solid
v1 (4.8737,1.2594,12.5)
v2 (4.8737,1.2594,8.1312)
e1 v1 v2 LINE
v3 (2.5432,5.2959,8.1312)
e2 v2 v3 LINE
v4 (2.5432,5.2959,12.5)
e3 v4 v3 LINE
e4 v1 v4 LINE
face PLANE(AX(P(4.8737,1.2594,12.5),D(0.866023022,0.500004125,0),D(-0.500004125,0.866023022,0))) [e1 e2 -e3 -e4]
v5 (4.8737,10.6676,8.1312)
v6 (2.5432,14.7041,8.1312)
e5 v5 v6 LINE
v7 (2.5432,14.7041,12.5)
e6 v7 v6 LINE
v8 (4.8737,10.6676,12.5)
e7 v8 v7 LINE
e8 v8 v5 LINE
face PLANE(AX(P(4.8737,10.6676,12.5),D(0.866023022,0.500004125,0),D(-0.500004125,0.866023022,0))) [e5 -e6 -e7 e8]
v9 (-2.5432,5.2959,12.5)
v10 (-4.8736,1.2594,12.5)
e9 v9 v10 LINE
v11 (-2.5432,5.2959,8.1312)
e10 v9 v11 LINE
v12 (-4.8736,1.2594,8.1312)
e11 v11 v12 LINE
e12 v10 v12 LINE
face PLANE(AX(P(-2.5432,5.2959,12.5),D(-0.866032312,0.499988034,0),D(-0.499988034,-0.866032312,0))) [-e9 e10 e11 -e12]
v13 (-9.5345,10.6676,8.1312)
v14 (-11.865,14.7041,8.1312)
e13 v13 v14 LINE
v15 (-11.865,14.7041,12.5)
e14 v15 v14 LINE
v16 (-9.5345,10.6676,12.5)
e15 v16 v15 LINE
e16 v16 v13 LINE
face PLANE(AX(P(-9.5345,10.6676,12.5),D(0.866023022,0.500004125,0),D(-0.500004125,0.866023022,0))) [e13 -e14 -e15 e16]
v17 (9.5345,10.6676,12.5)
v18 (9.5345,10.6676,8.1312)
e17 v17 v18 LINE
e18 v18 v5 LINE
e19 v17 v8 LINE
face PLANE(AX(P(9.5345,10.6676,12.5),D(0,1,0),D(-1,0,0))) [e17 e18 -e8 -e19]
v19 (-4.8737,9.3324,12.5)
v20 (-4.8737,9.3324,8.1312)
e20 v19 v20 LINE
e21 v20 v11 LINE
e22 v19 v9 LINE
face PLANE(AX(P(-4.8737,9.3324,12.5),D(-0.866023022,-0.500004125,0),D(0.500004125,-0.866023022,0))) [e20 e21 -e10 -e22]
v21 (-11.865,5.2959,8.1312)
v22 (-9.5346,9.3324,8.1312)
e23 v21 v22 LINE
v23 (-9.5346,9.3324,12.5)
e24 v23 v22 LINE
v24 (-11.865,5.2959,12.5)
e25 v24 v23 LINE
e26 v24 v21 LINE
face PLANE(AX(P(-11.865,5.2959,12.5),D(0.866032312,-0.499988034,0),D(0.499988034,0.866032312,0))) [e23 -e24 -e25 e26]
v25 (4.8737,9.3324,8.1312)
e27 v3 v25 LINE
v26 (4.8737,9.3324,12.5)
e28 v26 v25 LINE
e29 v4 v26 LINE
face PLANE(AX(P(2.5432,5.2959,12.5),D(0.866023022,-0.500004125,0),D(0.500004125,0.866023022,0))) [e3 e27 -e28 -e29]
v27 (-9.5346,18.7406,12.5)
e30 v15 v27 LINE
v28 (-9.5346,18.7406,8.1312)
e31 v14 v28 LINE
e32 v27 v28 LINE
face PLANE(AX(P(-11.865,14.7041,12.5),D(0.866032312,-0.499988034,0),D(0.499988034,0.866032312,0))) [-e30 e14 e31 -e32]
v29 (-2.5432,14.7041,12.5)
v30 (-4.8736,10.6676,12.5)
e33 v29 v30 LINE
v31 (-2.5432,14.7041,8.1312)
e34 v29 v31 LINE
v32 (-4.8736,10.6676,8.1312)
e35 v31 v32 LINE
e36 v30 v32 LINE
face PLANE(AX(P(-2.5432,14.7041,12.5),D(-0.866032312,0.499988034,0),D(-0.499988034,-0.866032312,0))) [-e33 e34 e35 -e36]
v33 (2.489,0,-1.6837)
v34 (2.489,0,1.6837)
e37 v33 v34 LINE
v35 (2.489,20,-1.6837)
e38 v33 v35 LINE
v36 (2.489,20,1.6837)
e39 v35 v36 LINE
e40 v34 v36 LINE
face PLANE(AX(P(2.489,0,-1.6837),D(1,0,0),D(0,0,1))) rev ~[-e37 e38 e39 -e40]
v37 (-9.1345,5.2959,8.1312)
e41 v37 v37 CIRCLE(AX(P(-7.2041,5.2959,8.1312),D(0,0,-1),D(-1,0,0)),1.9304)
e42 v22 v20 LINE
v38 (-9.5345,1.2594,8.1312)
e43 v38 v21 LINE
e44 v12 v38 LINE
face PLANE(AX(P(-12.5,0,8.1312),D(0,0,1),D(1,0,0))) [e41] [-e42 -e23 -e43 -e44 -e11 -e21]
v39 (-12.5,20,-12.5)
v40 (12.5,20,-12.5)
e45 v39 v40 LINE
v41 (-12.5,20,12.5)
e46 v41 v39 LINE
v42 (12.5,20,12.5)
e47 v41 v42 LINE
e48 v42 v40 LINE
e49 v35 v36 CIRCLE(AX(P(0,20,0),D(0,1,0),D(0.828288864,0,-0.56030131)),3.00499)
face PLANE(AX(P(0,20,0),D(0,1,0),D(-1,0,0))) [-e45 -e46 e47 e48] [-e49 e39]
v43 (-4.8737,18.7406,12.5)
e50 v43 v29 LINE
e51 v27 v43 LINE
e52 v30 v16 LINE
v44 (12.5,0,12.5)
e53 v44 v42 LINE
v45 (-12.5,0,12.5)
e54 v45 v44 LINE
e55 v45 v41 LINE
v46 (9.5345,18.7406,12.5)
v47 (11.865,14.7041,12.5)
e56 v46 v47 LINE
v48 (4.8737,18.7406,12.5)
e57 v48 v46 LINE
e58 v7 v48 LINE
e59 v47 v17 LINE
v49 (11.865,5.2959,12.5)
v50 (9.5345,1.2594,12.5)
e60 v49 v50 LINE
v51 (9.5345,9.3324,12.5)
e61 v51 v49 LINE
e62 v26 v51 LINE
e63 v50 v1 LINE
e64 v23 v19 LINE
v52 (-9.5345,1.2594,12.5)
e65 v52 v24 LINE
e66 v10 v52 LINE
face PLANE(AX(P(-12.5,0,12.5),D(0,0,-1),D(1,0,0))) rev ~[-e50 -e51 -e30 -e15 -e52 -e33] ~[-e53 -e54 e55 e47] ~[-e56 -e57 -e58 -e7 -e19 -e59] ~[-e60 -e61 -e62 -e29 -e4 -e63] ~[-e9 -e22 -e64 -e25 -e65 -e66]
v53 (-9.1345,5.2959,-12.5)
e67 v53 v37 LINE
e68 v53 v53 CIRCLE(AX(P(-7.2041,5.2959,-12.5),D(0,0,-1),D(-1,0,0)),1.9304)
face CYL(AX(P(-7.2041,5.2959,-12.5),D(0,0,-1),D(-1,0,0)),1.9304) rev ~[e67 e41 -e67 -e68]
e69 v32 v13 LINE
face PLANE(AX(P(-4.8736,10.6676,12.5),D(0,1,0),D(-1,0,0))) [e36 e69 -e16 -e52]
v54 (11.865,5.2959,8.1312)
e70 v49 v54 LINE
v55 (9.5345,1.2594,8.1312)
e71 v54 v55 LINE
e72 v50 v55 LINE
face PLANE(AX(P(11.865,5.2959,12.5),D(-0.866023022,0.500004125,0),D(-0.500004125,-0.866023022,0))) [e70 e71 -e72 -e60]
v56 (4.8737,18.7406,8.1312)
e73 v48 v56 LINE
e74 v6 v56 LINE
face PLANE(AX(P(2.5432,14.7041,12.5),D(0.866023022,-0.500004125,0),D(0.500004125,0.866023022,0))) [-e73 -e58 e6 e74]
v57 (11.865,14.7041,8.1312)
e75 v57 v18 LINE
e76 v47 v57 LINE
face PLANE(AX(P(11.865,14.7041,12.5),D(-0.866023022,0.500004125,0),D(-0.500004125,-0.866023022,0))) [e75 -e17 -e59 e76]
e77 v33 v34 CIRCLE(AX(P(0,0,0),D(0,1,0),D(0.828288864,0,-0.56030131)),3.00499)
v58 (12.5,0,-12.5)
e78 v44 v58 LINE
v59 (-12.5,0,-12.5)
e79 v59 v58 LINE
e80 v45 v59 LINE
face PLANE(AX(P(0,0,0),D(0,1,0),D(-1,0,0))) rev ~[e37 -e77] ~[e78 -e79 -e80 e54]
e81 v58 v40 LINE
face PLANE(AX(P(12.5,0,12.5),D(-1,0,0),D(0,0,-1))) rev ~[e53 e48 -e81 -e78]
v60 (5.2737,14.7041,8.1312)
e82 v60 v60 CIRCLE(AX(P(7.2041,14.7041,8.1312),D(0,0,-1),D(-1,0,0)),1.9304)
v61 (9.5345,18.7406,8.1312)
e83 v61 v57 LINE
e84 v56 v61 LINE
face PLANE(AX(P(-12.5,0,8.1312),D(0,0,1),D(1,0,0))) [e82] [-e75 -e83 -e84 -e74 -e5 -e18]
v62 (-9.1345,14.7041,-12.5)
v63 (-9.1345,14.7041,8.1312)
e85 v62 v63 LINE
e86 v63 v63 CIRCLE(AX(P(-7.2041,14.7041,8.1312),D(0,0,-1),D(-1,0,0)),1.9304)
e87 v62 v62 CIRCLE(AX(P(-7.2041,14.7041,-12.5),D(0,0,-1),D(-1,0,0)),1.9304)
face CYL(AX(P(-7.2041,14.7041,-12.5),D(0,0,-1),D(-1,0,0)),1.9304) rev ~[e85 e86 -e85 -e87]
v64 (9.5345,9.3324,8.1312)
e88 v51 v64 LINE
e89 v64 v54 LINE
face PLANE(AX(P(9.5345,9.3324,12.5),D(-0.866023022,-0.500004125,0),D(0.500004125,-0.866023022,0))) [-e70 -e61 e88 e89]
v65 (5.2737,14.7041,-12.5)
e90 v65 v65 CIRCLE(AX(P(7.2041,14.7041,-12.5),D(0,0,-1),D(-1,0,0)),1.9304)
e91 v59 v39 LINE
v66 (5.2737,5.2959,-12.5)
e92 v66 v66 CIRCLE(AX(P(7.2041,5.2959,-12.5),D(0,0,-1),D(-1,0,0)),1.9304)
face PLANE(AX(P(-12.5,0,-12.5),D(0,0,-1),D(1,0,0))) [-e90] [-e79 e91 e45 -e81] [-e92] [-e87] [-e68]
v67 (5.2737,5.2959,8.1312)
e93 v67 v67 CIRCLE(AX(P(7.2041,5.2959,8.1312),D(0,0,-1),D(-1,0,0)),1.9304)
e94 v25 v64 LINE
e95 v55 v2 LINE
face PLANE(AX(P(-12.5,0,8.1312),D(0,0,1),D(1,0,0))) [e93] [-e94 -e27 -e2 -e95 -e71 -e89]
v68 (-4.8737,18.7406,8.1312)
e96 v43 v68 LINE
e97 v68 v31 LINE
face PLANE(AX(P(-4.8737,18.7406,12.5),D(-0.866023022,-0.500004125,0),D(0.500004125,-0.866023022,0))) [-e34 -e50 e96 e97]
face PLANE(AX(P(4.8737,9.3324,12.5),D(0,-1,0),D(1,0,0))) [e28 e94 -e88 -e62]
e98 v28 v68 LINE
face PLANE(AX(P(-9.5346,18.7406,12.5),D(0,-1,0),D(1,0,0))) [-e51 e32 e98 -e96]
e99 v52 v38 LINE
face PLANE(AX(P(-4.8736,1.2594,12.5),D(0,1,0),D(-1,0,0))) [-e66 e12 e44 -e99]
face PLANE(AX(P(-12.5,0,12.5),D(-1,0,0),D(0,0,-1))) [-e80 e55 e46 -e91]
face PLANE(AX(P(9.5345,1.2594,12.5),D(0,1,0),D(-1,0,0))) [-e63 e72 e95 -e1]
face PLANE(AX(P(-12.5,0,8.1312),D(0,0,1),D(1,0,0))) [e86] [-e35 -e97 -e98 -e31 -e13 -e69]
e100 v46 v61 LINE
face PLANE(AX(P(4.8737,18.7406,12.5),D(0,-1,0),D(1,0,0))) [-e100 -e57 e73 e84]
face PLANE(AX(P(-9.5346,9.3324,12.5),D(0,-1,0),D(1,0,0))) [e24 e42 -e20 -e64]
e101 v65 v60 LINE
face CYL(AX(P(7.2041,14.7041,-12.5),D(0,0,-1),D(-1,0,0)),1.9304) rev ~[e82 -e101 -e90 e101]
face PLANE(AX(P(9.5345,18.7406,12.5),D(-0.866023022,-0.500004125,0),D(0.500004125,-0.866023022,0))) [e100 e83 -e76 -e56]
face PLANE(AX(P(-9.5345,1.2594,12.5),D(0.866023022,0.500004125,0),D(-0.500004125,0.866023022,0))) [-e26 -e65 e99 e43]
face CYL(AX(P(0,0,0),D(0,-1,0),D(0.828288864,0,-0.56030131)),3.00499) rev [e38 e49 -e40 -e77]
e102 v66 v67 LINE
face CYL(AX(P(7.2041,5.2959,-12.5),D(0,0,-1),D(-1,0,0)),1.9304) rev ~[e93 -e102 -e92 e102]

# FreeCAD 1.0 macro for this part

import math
import FreeCAD as App
import Part
import Sketcher
Q = App.Units.Quantity

doc = App.newDocument("Part")
body = doc.addObject("PartDesign::Body", "Body")

# Sketch on XZ plane
sketch1 = body.newObject("Sketcher::SketchObject", "Sketch")
sketch1.AttachmentSupport = (doc.getObject("XZ_Plane"), [""])
sketch1.MapMode = "FlatFace"
sketch1.addGeometry([
    Part.LineSegment(App.Vector(-12.5, -12.5, 0), App.Vector(-12.5, 12.5, 0)),  # 0
    Part.LineSegment(App.Vector(-12.5, 12.5, 0), App.Vector(12.5, 12.5, 0)),  # 1
    Part.LineSegment(App.Vector(12.5, 12.5, 0), App.Vector(12.5, -12.5, 0)),  # 2
    Part.LineSegment(App.Vector(12.5, -12.5, 0), App.Vector(-12.5, -12.5, 0)),  # 3
    Part.ArcOfCircle(Part.Circle(App.Vector(0, 0, 0), App.Vector(0, 0, 1), 3), math.radians(34), math.radians(326)),  # 4
    Part.LineSegment(App.Vector(2.5, -1.7, 0), App.Vector(2.5, 1.7, 0)),  # 5
], False)
sketch1.addConstraint([
    Sketcher.Constraint("Coincident", 0, 2, 1, 1),
    Sketcher.Constraint("Coincident", 1, 2, 2, 1),
    Sketcher.Constraint("Coincident", 2, 2, 3, 1),
    Sketcher.Constraint("Coincident", 3, 2, 0, 1),
    Sketcher.Constraint("Coincident", 4, 1, 5, 2),
    Sketcher.Constraint("Coincident", 5, 1, 4, 2),
    Sketcher.Constraint("Vertical", 0),
    Sketcher.Constraint("Horizontal", 1),
    Sketcher.Constraint("Vertical", 2),
    Sketcher.Constraint("Horizontal", 3),
    Sketcher.Constraint("Vertical", 5),
    Sketcher.Constraint("Coincident", 4, 3, -1, 1),
    Sketcher.Constraint("Symmetric", 0, 2, 2, 2, -1, 1),
    Sketcher.Constraint("Equal", 3, 0),
    Sketcher.Constraint("DistanceX", 1, 1, 1, 2, Q("25 mm")),
    Sketcher.Constraint("Radius", 4, Q("3.005 mm")),
    Sketcher.Constraint("DistanceX", -1, 1, 4, 1, Q("2.489 mm")),
])
pad1 = body.newObject("PartDesign::Pad", "Pad")
pad1.Profile = sketch1
pad1.Length = 20
pad1.Reversed = True

# Sketch on XY plane
sketch2 = body.newObject("Sketcher::SketchObject", "Sketch001")
sketch2.AttachmentSupport = (doc.getObject("XY_Plane"), [""])
sketch2.MapMode = "FlatFace"
sketch2.AttachmentOffset = App.Placement(App.Vector(0, 0, -12.5), App.Rotation())
sketch2.addGeometry([
    Part.Circle(App.Vector(7.2, 14.7, 0), App.Vector(0, 0, 1), 1.9),
    Part.Circle(App.Vector(7.2, 5.3, 0), App.Vector(0, 0, 1), 1.9),
    Part.Circle(App.Vector(-7.2, 14.7, 0), App.Vector(0, 0, 1), 1.9),
    Part.Circle(App.Vector(-7.2, 5.3, 0), App.Vector(0, 0, 1), 1.9),
], False)
sketch2.addConstraint([
    Sketcher.Constraint("Equal", 0, 1),
    Sketcher.Constraint("Equal", 1, 2),
    Sketcher.Constraint("Equal", 2, 3),
    Sketcher.Constraint("Symmetric", 0, 3, 2, 3, -2),
    Sketcher.Constraint("Symmetric", 1, 3, 3, 3, -2),
    Sketcher.Constraint("Vertical", 0, 3, 1, 3),
    Sketcher.Constraint("Diameter", 0, Q("3.8608 mm")),
    Sketcher.Constraint("DistanceY", -1, 1, 1, 3, Q("5.296 mm")),
    Sketcher.Constraint("DistanceX", -1, 1, 0, 3, Q("7.204 mm")),
    Sketcher.Constraint("DistanceY", -1, 1, 0, 3, Q("14.704 mm")),
])
pocket1 = body.newObject("PartDesign::Pocket", "Pocket")
pocket1.Profile = sketch2
pocket1.Type = "ThroughAll"
pocket1.Reversed = True

# Sketch on XY plane
sketch3 = body.newObject("Sketcher::SketchObject", "Sketch002")
sketch3.AttachmentSupport = (doc.getObject("XY_Plane"), [""])
sketch3.MapMode = "FlatFace"
sketch3.AttachmentOffset = App.Placement(App.Vector(0, 0, 12.5), App.Rotation())
sketch3.addGeometry([
    Part.LineSegment(App.Vector(9.5, 10.7, 0), App.Vector(11.9, 14.7, 0)),  # 0
    Part.LineSegment(App.Vector(11.9, 14.7, 0), App.Vector(9.5, 18.7, 0)),  # 1
    Part.LineSegment(App.Vector(9.5, 18.7, 0), App.Vector(4.9, 18.7, 0)),  # 2
    Part.LineSegment(App.Vector(4.9, 18.7, 0), App.Vector(2.5, 14.7, 0)),  # 3
    Part.LineSegment(App.Vector(2.5, 14.7, 0), App.Vector(4.9, 10.7, 0)),  # 4
    Part.LineSegment(App.Vector(4.9, 10.7, 0), App.Vector(9.5, 10.7, 0)),  # 5
    Part.LineSegment(App.Vector(9.5, 1.3, 0), App.Vector(11.9, 5.3, 0)),  # 6
    Part.LineSegment(App.Vector(11.9, 5.3, 0), App.Vector(9.5, 9.3, 0)),  # 7
    Part.LineSegment(App.Vector(9.5, 9.3, 0), App.Vector(4.9, 9.3, 0)),  # 8
    Part.LineSegment(App.Vector(4.9, 9.3, 0), App.Vector(2.5, 5.3, 0)),  # 9
    Part.LineSegment(App.Vector(2.5, 5.3, 0), App.Vector(4.9, 1.3, 0)),  # 10
    Part.LineSegment(App.Vector(4.9, 1.3, 0), App.Vector(9.5, 1.3, 0)),  # 11
    Part.LineSegment(App.Vector(-4.9, 1.3, 0), App.Vector(-2.5, 5.3, 0)),  # 12
    Part.LineSegment(App.Vector(-2.5, 5.3, 0), App.Vector(-4.9, 9.3, 0)),  # 13
    Part.LineSegment(App.Vector(-4.9, 9.3, 0), App.Vector(-9.5, 9.3, 0)),  # 14
    Part.LineSegment(App.Vector(-9.5, 9.3, 0), App.Vector(-11.9, 5.3, 0)),  # 15
    Part.LineSegment(App.Vector(-11.9, 5.3, 0), App.Vector(-9.5, 1.3, 0)),  # 16
    Part.LineSegment(App.Vector(-9.5, 1.3, 0), App.Vector(-4.9, 1.3, 0)),  # 17
    Part.LineSegment(App.Vector(-4.9, 10.7, 0), App.Vector(-2.5, 14.7, 0)),  # 18
    Part.LineSegment(App.Vector(-2.5, 14.7, 0), App.Vector(-4.9, 18.7, 0)),  # 19
    Part.LineSegment(App.Vector(-4.9, 18.7, 0), App.Vector(-9.5, 18.7, 0)),  # 20
    Part.LineSegment(App.Vector(-9.5, 18.7, 0), App.Vector(-11.9, 14.7, 0)),  # 21
    Part.LineSegment(App.Vector(-11.9, 14.7, 0), App.Vector(-9.5, 10.7, 0)),  # 22
    Part.LineSegment(App.Vector(-9.5, 10.7, 0), App.Vector(-4.9, 10.7, 0)),  # 23
], False)
sketch3.addConstraint([
    Sketcher.Constraint("Coincident", 0, 2, 1, 1),
    Sketcher.Constraint("Coincident", 1, 2, 2, 1),
    Sketcher.Constraint("Coincident", 2, 2, 3, 1),
    Sketcher.Constraint("Coincident", 3, 2, 4, 1),
    Sketcher.Constraint("Coincident", 4, 2, 5, 1),
    Sketcher.Constraint("Coincident", 5, 2, 0, 1),
    Sketcher.Constraint("Coincident", 6, 2, 7, 1),
    Sketcher.Constraint("Coincident", 7, 2, 8, 1),
    Sketcher.Constraint("Coincident", 8, 2, 9, 1),
    Sketcher.Constraint("Coincident", 9, 2, 10, 1),
    Sketcher.Constraint("Coincident", 10, 2, 11, 1),
    Sketcher.Constraint("Coincident", 11, 2, 6, 1),
    Sketcher.Constraint("Coincident", 12, 2, 13, 1),
    Sketcher.Constraint("Coincident", 13, 2, 14, 1),
    Sketcher.Constraint("Coincident", 14, 2, 15, 1),
    Sketcher.Constraint("Coincident", 15, 2, 16, 1),
    Sketcher.Constraint("Coincident", 16, 2, 17, 1),
    Sketcher.Constraint("Coincident", 17, 2, 12, 1),
    Sketcher.Constraint("Coincident", 18, 2, 19, 1),
    Sketcher.Constraint("Coincident", 19, 2, 20, 1),
    Sketcher.Constraint("Coincident", 20, 2, 21, 1),
    Sketcher.Constraint("Coincident", 21, 2, 22, 1),
    Sketcher.Constraint("Coincident", 22, 2, 23, 1),
    Sketcher.Constraint("Coincident", 23, 2, 18, 1),
    Sketcher.Constraint("Horizontal", 2),
    Sketcher.Constraint("Horizontal", 5),
    Sketcher.Constraint("Horizontal", 8),
    Sketcher.Constraint("Horizontal", 11),
    Sketcher.Constraint("Horizontal", 14),
    Sketcher.Constraint("Horizontal", 17),
    Sketcher.Constraint("Horizontal", 20),
    Sketcher.Constraint("Horizontal", 23),
    Sketcher.Constraint("Symmetric", 9, 2, 12, 2, -2),
    Sketcher.Constraint("Symmetric", 8, 2, 13, 2, -2),
    Sketcher.Constraint("Symmetric", 6, 2, 15, 2, -2),
    Sketcher.Constraint("Symmetric", 11, 2, 16, 2, -2),
    Sketcher.Constraint("Symmetric", 3, 2, 18, 2, -2),
    Sketcher.Constraint("Symmetric", 2, 2, 19, 2, -2),
    Sketcher.Constraint("Symmetric", 0, 2, 21, 2, -2),
    Sketcher.Constraint("Symmetric", 5, 2, 22, 2, -2),
    Sketcher.Constraint("Parallel", 0, 3),
    Sketcher.Constraint("Parallel", 1, 4),
    Sketcher.Constraint("Parallel", 3, 6),
    Sketcher.Constraint("Parallel", 4, 7),
    Sketcher.Constraint("Parallel", 6, 9),
    Sketcher.Constraint("Parallel", 7, 10),
    Sketcher.Constraint("Parallel", 9, 12),
    Sketcher.Constraint("Parallel", 10, 13),
    Sketcher.Constraint("Parallel", 12, 15),
    Sketcher.Constraint("Parallel", 15, 18),
    Sketcher.Constraint("Parallel", 18, 21),
    Sketcher.Constraint("Horizontal", 0, 2, 3, 2),
    Sketcher.Constraint("Horizontal", 6, 2, 9, 2),
    Sketcher.Constraint("Vertical", 2, 2, 4, 2),
    Sketcher.Constraint("Vertical", 0, 2, 6, 2),
    Sketcher.Constraint("Vertical", 5, 2, 7, 2),
    Sketcher.Constraint("Vertical", 4, 2, 8, 2),
    Sketcher.Constraint("Vertical", 8, 2, 10, 2),
    Sketcher.Constraint("Angle", 0, Q("59.9997 deg")),
    Sketcher.Constraint("DistanceY", -1, 1, 6, 2, Q("5.296 mm")),
    Sketcher.Constraint("DistanceX", 3, 2, 0, 2, Q("9.3218 mm")),
    Sketcher.Constraint("DistanceX", 14, 2, 14, 1, Q("4.661 mm")),
    Sketcher.Constraint("DistanceX", -1, 1, 0, 2, Q("11.865 mm")),
    Sketcher.Constraint("DistanceY", -1, 1, 0, 2, Q("14.704 mm")),
])
pocket2 = body.newObject("PartDesign::Pocket", "Pocket001")
pocket2.Profile = sketch3
pocket2.Length = 4.3688

doc.recompute()
